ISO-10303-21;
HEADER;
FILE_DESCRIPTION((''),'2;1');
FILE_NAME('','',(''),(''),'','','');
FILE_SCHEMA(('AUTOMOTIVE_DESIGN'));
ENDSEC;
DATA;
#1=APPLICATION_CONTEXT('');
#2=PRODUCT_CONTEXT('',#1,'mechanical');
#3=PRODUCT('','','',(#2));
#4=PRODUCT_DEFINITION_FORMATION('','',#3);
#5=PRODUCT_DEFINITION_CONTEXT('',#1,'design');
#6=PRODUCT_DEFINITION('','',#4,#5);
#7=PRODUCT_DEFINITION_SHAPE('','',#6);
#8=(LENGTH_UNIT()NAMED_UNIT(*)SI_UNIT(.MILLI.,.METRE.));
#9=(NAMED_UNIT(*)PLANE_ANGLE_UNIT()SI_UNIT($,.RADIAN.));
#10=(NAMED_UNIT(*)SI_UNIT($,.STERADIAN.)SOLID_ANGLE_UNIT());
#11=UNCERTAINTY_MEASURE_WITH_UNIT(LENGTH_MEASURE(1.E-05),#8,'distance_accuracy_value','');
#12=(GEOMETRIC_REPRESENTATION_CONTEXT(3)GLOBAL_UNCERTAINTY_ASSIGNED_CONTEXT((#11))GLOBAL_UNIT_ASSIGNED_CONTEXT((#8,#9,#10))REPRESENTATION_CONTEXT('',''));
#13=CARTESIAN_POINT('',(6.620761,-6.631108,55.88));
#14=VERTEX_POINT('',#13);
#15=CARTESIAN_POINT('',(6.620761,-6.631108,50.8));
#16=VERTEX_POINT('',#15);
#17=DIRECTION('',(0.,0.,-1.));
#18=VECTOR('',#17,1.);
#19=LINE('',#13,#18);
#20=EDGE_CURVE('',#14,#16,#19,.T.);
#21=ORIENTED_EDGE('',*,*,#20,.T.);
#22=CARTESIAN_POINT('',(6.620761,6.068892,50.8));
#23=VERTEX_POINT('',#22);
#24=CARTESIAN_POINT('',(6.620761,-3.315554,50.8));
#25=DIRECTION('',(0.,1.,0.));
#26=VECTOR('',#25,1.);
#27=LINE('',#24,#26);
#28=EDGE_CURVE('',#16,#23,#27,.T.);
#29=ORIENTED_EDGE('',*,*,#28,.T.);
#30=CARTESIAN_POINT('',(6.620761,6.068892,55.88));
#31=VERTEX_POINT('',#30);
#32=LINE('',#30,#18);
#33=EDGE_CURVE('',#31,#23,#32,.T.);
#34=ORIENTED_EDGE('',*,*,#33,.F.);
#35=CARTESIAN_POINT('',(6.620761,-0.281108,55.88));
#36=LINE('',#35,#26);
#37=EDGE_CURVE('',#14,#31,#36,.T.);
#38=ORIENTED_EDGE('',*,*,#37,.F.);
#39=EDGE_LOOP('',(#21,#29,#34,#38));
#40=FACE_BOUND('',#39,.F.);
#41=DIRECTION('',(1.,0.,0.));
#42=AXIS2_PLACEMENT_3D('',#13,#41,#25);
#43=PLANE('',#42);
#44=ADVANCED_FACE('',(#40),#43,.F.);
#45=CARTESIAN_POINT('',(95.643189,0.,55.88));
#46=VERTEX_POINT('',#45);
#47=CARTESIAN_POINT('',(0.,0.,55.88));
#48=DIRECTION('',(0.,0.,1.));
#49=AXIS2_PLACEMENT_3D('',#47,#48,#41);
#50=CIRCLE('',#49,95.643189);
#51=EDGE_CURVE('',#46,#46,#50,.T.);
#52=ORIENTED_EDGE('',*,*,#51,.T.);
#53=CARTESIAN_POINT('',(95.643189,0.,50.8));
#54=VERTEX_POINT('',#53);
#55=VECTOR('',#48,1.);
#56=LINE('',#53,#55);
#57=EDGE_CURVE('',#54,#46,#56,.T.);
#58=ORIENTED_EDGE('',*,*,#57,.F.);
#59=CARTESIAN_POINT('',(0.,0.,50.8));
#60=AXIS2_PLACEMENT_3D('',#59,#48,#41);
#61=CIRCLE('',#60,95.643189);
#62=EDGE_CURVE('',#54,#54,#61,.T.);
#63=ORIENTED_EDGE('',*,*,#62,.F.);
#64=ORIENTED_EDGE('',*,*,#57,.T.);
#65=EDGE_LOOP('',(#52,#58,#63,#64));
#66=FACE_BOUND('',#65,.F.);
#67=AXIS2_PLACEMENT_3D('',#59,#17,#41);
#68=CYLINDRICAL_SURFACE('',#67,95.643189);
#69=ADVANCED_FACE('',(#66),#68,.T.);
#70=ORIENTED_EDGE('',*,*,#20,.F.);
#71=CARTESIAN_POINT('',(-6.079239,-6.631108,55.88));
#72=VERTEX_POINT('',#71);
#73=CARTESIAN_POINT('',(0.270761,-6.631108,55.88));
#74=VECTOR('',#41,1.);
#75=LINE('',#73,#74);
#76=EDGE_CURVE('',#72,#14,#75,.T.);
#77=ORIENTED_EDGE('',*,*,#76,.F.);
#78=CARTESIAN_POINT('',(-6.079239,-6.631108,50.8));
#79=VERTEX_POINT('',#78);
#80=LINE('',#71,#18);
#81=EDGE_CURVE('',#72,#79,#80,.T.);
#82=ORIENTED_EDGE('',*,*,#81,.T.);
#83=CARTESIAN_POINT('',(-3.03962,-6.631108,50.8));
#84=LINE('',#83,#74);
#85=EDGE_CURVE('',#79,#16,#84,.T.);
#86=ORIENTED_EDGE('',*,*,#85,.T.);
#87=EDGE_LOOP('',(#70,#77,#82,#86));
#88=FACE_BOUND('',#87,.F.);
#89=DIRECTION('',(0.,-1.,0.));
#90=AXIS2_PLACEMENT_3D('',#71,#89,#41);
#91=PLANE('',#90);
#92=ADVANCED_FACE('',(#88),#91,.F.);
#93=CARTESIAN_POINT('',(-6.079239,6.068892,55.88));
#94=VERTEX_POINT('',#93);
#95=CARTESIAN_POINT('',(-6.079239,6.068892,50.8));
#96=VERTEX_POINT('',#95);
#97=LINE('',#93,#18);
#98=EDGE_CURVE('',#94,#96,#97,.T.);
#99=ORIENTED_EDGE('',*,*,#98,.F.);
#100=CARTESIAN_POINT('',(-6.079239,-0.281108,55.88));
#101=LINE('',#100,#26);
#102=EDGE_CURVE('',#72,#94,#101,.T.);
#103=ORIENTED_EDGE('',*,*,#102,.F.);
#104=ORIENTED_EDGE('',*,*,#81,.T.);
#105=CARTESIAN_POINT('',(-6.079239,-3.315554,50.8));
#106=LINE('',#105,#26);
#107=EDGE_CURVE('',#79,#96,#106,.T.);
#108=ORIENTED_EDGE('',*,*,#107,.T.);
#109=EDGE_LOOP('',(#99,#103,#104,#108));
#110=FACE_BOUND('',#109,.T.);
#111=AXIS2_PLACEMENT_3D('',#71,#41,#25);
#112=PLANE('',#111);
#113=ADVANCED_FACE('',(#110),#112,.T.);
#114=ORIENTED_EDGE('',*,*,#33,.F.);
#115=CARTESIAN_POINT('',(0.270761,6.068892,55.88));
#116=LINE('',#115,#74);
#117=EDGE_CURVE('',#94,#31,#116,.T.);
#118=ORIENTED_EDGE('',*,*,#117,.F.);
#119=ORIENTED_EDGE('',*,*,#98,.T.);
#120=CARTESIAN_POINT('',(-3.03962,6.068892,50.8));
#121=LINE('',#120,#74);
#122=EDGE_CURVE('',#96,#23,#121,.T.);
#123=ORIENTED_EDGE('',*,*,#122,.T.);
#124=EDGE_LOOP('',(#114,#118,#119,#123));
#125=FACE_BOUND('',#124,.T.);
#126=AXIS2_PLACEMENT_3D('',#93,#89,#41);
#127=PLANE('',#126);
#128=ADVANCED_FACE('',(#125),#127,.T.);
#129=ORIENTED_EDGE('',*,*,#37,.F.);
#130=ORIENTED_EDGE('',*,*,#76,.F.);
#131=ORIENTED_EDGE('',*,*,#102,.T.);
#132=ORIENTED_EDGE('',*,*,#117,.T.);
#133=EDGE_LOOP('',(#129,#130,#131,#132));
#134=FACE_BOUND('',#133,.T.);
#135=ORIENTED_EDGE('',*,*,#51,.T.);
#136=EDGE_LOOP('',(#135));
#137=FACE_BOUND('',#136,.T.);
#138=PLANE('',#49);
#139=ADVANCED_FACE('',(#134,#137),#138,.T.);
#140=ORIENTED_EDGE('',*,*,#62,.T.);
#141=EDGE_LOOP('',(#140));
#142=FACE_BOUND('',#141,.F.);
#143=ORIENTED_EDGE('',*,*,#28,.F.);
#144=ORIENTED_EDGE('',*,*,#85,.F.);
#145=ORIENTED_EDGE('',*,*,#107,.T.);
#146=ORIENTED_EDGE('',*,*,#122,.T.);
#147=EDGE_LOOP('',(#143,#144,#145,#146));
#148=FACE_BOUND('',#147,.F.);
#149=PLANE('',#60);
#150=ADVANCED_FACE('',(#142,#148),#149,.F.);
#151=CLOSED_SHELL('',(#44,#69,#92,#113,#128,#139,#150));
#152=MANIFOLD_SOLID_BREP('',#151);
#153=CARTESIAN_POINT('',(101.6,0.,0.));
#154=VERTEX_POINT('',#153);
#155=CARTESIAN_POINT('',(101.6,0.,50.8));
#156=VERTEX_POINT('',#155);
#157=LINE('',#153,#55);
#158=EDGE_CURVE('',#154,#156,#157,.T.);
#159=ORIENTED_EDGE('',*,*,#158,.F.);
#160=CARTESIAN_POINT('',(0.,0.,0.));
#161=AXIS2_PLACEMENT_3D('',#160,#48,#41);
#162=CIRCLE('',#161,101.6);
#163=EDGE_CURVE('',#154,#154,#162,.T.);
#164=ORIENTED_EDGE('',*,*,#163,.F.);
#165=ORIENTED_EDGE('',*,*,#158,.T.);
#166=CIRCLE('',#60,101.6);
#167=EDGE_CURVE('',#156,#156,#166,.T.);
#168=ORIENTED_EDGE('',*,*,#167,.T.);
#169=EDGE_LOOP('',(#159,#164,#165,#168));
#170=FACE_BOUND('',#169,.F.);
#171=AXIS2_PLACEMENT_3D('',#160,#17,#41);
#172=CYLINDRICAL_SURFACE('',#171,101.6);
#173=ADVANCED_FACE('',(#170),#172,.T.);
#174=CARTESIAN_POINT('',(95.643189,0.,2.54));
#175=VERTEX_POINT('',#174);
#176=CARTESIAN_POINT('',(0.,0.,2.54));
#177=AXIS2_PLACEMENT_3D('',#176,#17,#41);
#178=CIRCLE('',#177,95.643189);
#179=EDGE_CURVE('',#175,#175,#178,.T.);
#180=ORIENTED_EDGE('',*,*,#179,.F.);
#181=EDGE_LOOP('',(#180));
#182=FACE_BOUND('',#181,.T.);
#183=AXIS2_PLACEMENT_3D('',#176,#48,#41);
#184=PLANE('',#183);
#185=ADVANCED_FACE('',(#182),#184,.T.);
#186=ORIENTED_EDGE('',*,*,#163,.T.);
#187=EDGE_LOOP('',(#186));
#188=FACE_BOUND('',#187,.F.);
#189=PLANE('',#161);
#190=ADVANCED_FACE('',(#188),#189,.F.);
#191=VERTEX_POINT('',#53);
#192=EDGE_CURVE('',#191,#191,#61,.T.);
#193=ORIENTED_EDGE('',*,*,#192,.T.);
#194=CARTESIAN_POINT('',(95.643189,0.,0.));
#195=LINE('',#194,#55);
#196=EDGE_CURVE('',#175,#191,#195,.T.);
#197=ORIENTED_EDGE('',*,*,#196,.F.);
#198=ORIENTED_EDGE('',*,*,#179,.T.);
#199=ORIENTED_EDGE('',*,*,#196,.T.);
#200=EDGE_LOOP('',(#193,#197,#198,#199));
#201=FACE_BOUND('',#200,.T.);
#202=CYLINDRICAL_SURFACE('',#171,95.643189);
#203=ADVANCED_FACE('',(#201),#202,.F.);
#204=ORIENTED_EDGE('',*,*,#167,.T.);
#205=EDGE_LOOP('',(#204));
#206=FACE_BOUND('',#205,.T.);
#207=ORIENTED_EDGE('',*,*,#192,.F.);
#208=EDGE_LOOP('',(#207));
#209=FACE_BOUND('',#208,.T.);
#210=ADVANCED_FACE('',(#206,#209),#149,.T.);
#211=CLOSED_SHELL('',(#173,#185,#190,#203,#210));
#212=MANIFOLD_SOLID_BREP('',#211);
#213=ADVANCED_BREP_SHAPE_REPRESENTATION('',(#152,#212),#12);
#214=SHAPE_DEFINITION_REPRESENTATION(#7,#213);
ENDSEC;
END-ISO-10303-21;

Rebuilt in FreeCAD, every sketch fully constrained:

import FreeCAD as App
import Part
import Sketcher

V = App.Vector
Q = App.Units.Quantity


def add_polygon(sketch, points):
    """Adds a closed chain of lines whose ends are joined by coincident constraints."""
    first, n = sketch.GeometryCount, len(points)
    for a, b in zip(points, points[1:] + points[:1]):
        sketch.addGeometry(Part.LineSegment(App.Vector(*a, 0), App.Vector(*b, 0)), False)
    for i in range(n):
        sketch.addConstraint(Sketcher.Constraint("Coincident", first + i, 2, first + (i + 1) % n, 1))

doc = App.newDocument("Part")
body = doc.addObject("PartDesign::Body", "Body")

# Sketch on XY plane
sketch1 = body.newObject("Sketcher::SketchObject", "Sketch")
sketch1.AttachmentSupport = (doc.getObject("XY_Plane"), [""])
sketch1.MapMode = "FlatFace"
sketch1.addGeometry([
    Part.Circle(V(0, 0, 0), V(0, 0, 1), 102),
    Part.Circle(V(0, 0, 0), V(0, 0, 1), 96),
], False)
sketch1.addConstraint([
    Sketcher.Constraint("Coincident", 0, 3, -1, 1),
    Sketcher.Constraint("Coincident", 1, 3, -1, 1),
    Sketcher.Constraint("Diameter", 0, Q("8 in")),
    Sketcher.Constraint("Diameter", 1, Q("191.286378 mm")),
])
pad1 = body.newObject("PartDesign::Pad", "Pad")
pad1.Profile = sketch1
pad1.Length = Q("2 in")

# Sketch on XY plane
sketch2 = body.newObject("Sketcher::SketchObject", "Sketch001")
sketch2.AttachmentSupport = (doc.getObject("XY_Plane"), [""])
sketch2.MapMode = "FlatFace"
sketch2.addGeometry(Part.Circle(V(0, 0, 0), V(0, 0, 1), 96), False)
sketch2.addConstraint([
    Sketcher.Constraint("Coincident", 0, 3, -1, 1),
    Sketcher.Constraint("Diameter", 0, Q("191.34386 mm")),
])
pad2 = body.newObject("PartDesign::Pad", "Pad001")
pad2.Profile = sketch2
pad2.Length = Q("0.1 in")
body2 = doc.addObject("PartDesign::Body", "Body001")

# Sketch on XY plane
sketch3 = body2.newObject("Sketcher::SketchObject", "Sketch002")
sketch3.AttachmentSupport = (doc.getObject("XY_Plane001"), [""])
sketch3.MapMode = "FlatFace"
sketch3.AttachmentOffset = App.Placement(V(0, 0, 2 * 25.4), App.Rotation())
sketch3.addGeometry(Part.Circle(V(0, 0, 0), V(0, 0, 1), 96), False)
sketch3.addConstraint([
    Sketcher.Constraint("Coincident", 0, 3, -1, 1),
    Sketcher.Constraint("Diameter", 0, Q("191.286378 mm")),
])
pad3 = body2.newObject("PartDesign::Pad", "Pad002")
pad3.Profile = sketch3
pad3.Length = Q("0.2 in")

# Sketch on XY plane
sketch4 = body2.newObject("Sketcher::SketchObject", "Sketch003")
sketch4.AttachmentSupport = (doc.getObject("XY_Plane001"), [""])
sketch4.MapMode = "FlatFace"
sketch4.AttachmentOffset = App.Placement(V(0, 0, 2.2 * 25.4), App.Rotation())
add_polygon(sketch4, [(-6, 6), (-6, -7), (7, -7), (7, 6)])  # lines 0-3
sketch4.addConstraint([
    Sketcher.Constraint("Vertical", 0),
    Sketcher.Constraint("Horizontal", 1),
    Sketcher.Constraint("Vertical", 2),
    Sketcher.Constraint("Horizontal", 3),
    Sketcher.Constraint("Equal", 3, 0),
    Sketcher.Constraint("DistanceX", 1, 1, 1, 2, Q("0.5 in")),
    Sketcher.Constraint("DistanceX", 0, 2, -1, 1, Q("6.079239 mm")),
    Sketcher.Constraint("DistanceY", 0, 2, -1, 1, Q("6.631108 mm")),
])
pocket1 = body2.newObject("PartDesign::Pocket", "Pocket")
pocket1.Profile = sketch4
pocket1.Length = Q("2 in")

doc.recompute()
